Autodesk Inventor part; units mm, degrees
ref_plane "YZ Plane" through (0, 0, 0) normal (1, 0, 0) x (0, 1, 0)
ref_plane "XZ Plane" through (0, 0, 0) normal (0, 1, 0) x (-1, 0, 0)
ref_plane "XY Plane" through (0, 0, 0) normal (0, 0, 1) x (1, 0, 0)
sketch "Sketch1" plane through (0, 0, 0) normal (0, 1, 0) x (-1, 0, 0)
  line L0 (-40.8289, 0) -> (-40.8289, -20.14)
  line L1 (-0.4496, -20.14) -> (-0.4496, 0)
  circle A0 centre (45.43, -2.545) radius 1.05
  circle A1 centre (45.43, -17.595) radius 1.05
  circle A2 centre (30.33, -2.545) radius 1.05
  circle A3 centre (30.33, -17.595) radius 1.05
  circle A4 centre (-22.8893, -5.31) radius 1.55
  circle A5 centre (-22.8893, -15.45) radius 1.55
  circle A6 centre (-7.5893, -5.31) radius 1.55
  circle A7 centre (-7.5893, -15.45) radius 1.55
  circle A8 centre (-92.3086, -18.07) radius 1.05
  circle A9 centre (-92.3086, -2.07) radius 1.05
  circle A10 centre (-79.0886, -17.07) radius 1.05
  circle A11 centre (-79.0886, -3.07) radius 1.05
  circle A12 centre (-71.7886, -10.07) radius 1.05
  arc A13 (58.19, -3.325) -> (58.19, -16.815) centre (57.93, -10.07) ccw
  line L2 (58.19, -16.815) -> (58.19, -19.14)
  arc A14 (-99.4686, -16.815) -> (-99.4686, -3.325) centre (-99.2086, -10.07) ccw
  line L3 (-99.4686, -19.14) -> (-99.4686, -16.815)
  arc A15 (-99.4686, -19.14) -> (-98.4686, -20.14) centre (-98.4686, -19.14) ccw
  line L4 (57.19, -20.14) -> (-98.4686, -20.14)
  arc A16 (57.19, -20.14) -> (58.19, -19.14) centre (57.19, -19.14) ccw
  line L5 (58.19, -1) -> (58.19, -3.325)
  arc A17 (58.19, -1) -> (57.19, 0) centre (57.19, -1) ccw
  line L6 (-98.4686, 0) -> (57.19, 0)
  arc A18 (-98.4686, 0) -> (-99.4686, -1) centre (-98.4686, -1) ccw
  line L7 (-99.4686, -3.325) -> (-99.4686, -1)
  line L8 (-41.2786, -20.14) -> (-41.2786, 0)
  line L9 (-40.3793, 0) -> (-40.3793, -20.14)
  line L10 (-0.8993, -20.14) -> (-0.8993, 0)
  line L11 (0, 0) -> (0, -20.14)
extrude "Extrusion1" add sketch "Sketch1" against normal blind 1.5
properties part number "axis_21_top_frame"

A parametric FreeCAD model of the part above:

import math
import FreeCAD as App
import Part
import Sketcher

V = App.Vector

doc = App.newDocument("Part")
body = doc.addObject("PartDesign::Body", "Body")

sketch1 = doc.addObject("Sketcher::SketchObject", "Sketch")
body.addObject(sketch1)
sketch1.AttachmentSupport = (doc.XZ_Plane, [""])
sketch1.MapMode = "FlatFace"
sketch1.addGeometry([
    Part.ArcOfCircle(Part.Circle(V(98.4686, -1, 0), V(0, 0, 1), 1), math.radians(0), math.radians(90)),
    Part.LineSegment(V(99.4686, -1, 0), V(99.4686, -3.325, 0)),
    Part.ArcOfCircle(Part.Circle(V(99.2086, -10.07, 0), V(0, 0, 1), 6.750009), math.radians(87.792508), math.radians(272.207492)),
    Part.LineSegment(V(99.4686, -16.815, 0), V(99.4686, -19.14, 0)),
    Part.ArcOfCircle(Part.Circle(V(98.4686, -19.14, 0), V(0, 0, 1), 1), math.radians(-90), math.radians(0)),
    Part.LineSegment(V(98.4686, -20.14, 0), V(-57.19, -20.14, 0)),
    Part.ArcOfCircle(Part.Circle(V(-57.19, -19.14, 0), V(0, 0, 1), 1), math.radians(180), math.radians(270)),
    Part.LineSegment(V(-58.19, -19.14, 0), V(-58.19, -16.815, 0)),
    Part.ArcOfCircle(Part.Circle(V(-57.93, -10.07, 0), V(0, 0, 1), 6.750009), math.radians(-92.207492), math.radians(92.207492)),
    Part.LineSegment(V(-58.19, -3.325, 0), V(-58.19, -1, 0)),
    Part.ArcOfCircle(Part.Circle(V(-57.19, -1, 0), V(0, 0, 1), 1), math.radians(90), math.radians(180)),
    Part.LineSegment(V(-57.19, 0, 0), V(98.4686, 0, 0)),
    Part.Circle(V(7.5893, -5.31, 0), V(0, 0, 1), 1.55),
    Part.Circle(V(22.8893, -15.45, 0), V(0, 0, 1), 1.55),
    Part.Circle(V(7.5893, -15.45, 0), V(0, 0, 1), 1.55),
    Part.Circle(V(22.8893, -5.31, 0), V(0, 0, 1), 1.55),
    Part.Circle(V(92.3086, -2.07, 0), V(0, 0, 1), 1.05),
    Part.Circle(V(92.3086, -18.07, 0), V(0, 0, 1), 1.05),
    Part.Circle(V(79.0886, -17.07, 0), V(0, 0, 1), 1.05),
    Part.Circle(V(71.7886, -10.07, 0), V(0, 0, 1), 1.05),
    Part.Circle(V(79.0886, -3.07, 0), V(0, 0, 1), 1.05),
    Part.Circle(V(-45.43, -2.545, 0), V(0, 0, 1), 1.05),
    Part.Circle(V(-30.33, -17.595, 0), V(0, 0, 1), 1.05),
    Part.Circle(V(-45.43, -17.595, 0), V(0, 0, 1), 1.05),
    Part.Circle(V(-30.33, -2.545, 0), V(0, 0, 1), 1.05),
], False)
sketch1.addConstraint([
    Sketcher.Constraint("Tangent", 0, 1, 1, 1),
    Sketcher.Constraint("Coincident", 1, 2, 2, 1),
    Sketcher.Constraint("Coincident", 2, 2, 3, 1),
    Sketcher.Constraint("Tangent", 3, 2, 4, 2),
    Sketcher.Constraint("Tangent", 4, 1, 5, 1),
    Sketcher.Constraint("Tangent", 5, 2, 6, 2),
    Sketcher.Constraint("Tangent", 6, 1, 7, 1),
    Sketcher.Constraint("Coincident", 7, 2, 8, 1),
    Sketcher.Constraint("Coincident", 8, 2, 9, 1),
    Sketcher.Constraint("Tangent", 9, 2, 10, 2),
    Sketcher.Constraint("Tangent", 10, 1, 11, 1),
    Sketcher.Constraint("Tangent", 11, 2, 0, 2),
    Sketcher.Constraint("Vertical", 1),
    Sketcher.Constraint("Vertical", 3),
    Sketcher.Constraint("Horizontal", 5),
    Sketcher.Constraint("Vertical", 7),
    Sketcher.Constraint("Vertical", 9),
    Sketcher.Constraint("Horizontal", 11),
    Sketcher.Constraint("Equal", 0, 4),
    Sketcher.Constraint("Equal", 4, 6),
    Sketcher.Constraint("Equal", 2, 8),
    Sketcher.Constraint("Equal", 6, 10),
    Sketcher.Constraint("Equal", 12, 13),
    Sketcher.Constraint("Equal", 13, 14),
    Sketcher.Constraint("Equal", 14, 15),
    Sketcher.Constraint("Equal", 16, 17),
    Sketcher.Constraint("Equal", 17, 18),
    Sketcher.Constraint("Equal", 18, 19),
    Sketcher.Constraint("Equal", 19, 20),
    Sketcher.Constraint("Equal", 20, 21),
    Sketcher.Constraint("Equal", 21, 22),
    Sketcher.Constraint("Equal", 22, 23),
    Sketcher.Constraint("Equal", 23, 24),
    Sketcher.Constraint("PointOnObject", 10, 1, -1),
    Sketcher.Constraint("Horizontal", 2, 3, 8, 3),
    Sketcher.Constraint("Horizontal", 13, 3, 14, 3),
    Sketcher.Constraint("Horizontal", 12, 3, 15, 3),
    Sketcher.Constraint("Horizontal", 8, 3, 19, 3),
    Sketcher.Constraint("Horizontal", 22, 3, 23, 3),
    Sketcher.Constraint("Horizontal", 21, 3, 24, 3),
    Sketcher.Constraint("Horizontal", 2, 2, 7, 2),
    Sketcher.Constraint("Horizontal", 1, 2, 8, 2),
    Sketcher.Constraint("Vertical", 0, 3, 4, 3),
    Sketcher.Constraint("Vertical", 12, 3, 14, 3),
    Sketcher.Constraint("Vertical", 13, 3, 15, 3),
    Sketcher.Constraint("Vertical", 16, 3, 17, 3),
    Sketcher.Constraint("Vertical", 18, 3, 20, 3),
    Sketcher.Constraint("Vertical", 21, 3, 23, 3),
    Sketcher.Constraint("Vertical", 22, 3, 24, 3),
    Sketcher.Constraint("Equal", 1, 3),
    Sketcher.Constraint("Radius", 0, 1.0),
    Sketcher.Constraint("Diameter", 12, 3.1),
    Sketcher.Constraint("Diameter", 16, 2.1),
    Sketcher.Constraint("Radius", 2, 6.75),
    Sketcher.Constraint("DistanceY", 2, 3, 16, 3, 8.0),
    Sketcher.Constraint("DistanceY", 17, 3, 2, 3, 8.0),
    Sketcher.Constraint("DistanceY", 17, 3, 18, 3, 1.0),
    Sketcher.Constraint("DistanceY", 19, 3, 20, 3, 7.0),
    Sketcher.Constraint("DistanceX", 12, 3, 13, 3, 15.3),
    Sketcher.Constraint("DistanceX", 16, 3, 2, 3, 6.9),
    Sketcher.Constraint("DistanceX", 19, 3, 18, 3, 7.3),
    Sketcher.Constraint("DistanceX", 8, 3, 21, 3, 12.5),
    Sketcher.Constraint("DistanceX", 21, 3, 22, 3, 15.1),
    Sketcher.Constraint("DistanceY", 1, 2, 1, 1, 2.325),
    Sketcher.Constraint("DistanceY", 2, 3, -1, 1, 10.07),
    Sketcher.Constraint("DistanceX", 6, 3, -1, 1, 57.19),
    Sketcher.Constraint("DistanceY", 12, 3, -1, 1, 5.31),
    Sketcher.Constraint("DistanceY", 13, 3, -1, 1, 15.45),
    Sketcher.Constraint("DistanceX", 18, 3, 17, 3, 13.22),
    Sketcher.Constraint("DistanceY", 22, 3, 21, 3, 15.05),
    Sketcher.Constraint("DistanceY", 23, 3, 7, 2, 0.78),
    Sketcher.Constraint("DistanceX", 5, 2, 5, 1, 155.6586),
    Sketcher.Constraint("DistanceX", -1, 1, 12, 3, 7.5893),
])
pad1 = doc.addObject("PartDesign::Pad", "Pad")
body.addObject(pad1)
pad1.Profile = sketch1
pad1.Length = 1.5

doc.recompute()
